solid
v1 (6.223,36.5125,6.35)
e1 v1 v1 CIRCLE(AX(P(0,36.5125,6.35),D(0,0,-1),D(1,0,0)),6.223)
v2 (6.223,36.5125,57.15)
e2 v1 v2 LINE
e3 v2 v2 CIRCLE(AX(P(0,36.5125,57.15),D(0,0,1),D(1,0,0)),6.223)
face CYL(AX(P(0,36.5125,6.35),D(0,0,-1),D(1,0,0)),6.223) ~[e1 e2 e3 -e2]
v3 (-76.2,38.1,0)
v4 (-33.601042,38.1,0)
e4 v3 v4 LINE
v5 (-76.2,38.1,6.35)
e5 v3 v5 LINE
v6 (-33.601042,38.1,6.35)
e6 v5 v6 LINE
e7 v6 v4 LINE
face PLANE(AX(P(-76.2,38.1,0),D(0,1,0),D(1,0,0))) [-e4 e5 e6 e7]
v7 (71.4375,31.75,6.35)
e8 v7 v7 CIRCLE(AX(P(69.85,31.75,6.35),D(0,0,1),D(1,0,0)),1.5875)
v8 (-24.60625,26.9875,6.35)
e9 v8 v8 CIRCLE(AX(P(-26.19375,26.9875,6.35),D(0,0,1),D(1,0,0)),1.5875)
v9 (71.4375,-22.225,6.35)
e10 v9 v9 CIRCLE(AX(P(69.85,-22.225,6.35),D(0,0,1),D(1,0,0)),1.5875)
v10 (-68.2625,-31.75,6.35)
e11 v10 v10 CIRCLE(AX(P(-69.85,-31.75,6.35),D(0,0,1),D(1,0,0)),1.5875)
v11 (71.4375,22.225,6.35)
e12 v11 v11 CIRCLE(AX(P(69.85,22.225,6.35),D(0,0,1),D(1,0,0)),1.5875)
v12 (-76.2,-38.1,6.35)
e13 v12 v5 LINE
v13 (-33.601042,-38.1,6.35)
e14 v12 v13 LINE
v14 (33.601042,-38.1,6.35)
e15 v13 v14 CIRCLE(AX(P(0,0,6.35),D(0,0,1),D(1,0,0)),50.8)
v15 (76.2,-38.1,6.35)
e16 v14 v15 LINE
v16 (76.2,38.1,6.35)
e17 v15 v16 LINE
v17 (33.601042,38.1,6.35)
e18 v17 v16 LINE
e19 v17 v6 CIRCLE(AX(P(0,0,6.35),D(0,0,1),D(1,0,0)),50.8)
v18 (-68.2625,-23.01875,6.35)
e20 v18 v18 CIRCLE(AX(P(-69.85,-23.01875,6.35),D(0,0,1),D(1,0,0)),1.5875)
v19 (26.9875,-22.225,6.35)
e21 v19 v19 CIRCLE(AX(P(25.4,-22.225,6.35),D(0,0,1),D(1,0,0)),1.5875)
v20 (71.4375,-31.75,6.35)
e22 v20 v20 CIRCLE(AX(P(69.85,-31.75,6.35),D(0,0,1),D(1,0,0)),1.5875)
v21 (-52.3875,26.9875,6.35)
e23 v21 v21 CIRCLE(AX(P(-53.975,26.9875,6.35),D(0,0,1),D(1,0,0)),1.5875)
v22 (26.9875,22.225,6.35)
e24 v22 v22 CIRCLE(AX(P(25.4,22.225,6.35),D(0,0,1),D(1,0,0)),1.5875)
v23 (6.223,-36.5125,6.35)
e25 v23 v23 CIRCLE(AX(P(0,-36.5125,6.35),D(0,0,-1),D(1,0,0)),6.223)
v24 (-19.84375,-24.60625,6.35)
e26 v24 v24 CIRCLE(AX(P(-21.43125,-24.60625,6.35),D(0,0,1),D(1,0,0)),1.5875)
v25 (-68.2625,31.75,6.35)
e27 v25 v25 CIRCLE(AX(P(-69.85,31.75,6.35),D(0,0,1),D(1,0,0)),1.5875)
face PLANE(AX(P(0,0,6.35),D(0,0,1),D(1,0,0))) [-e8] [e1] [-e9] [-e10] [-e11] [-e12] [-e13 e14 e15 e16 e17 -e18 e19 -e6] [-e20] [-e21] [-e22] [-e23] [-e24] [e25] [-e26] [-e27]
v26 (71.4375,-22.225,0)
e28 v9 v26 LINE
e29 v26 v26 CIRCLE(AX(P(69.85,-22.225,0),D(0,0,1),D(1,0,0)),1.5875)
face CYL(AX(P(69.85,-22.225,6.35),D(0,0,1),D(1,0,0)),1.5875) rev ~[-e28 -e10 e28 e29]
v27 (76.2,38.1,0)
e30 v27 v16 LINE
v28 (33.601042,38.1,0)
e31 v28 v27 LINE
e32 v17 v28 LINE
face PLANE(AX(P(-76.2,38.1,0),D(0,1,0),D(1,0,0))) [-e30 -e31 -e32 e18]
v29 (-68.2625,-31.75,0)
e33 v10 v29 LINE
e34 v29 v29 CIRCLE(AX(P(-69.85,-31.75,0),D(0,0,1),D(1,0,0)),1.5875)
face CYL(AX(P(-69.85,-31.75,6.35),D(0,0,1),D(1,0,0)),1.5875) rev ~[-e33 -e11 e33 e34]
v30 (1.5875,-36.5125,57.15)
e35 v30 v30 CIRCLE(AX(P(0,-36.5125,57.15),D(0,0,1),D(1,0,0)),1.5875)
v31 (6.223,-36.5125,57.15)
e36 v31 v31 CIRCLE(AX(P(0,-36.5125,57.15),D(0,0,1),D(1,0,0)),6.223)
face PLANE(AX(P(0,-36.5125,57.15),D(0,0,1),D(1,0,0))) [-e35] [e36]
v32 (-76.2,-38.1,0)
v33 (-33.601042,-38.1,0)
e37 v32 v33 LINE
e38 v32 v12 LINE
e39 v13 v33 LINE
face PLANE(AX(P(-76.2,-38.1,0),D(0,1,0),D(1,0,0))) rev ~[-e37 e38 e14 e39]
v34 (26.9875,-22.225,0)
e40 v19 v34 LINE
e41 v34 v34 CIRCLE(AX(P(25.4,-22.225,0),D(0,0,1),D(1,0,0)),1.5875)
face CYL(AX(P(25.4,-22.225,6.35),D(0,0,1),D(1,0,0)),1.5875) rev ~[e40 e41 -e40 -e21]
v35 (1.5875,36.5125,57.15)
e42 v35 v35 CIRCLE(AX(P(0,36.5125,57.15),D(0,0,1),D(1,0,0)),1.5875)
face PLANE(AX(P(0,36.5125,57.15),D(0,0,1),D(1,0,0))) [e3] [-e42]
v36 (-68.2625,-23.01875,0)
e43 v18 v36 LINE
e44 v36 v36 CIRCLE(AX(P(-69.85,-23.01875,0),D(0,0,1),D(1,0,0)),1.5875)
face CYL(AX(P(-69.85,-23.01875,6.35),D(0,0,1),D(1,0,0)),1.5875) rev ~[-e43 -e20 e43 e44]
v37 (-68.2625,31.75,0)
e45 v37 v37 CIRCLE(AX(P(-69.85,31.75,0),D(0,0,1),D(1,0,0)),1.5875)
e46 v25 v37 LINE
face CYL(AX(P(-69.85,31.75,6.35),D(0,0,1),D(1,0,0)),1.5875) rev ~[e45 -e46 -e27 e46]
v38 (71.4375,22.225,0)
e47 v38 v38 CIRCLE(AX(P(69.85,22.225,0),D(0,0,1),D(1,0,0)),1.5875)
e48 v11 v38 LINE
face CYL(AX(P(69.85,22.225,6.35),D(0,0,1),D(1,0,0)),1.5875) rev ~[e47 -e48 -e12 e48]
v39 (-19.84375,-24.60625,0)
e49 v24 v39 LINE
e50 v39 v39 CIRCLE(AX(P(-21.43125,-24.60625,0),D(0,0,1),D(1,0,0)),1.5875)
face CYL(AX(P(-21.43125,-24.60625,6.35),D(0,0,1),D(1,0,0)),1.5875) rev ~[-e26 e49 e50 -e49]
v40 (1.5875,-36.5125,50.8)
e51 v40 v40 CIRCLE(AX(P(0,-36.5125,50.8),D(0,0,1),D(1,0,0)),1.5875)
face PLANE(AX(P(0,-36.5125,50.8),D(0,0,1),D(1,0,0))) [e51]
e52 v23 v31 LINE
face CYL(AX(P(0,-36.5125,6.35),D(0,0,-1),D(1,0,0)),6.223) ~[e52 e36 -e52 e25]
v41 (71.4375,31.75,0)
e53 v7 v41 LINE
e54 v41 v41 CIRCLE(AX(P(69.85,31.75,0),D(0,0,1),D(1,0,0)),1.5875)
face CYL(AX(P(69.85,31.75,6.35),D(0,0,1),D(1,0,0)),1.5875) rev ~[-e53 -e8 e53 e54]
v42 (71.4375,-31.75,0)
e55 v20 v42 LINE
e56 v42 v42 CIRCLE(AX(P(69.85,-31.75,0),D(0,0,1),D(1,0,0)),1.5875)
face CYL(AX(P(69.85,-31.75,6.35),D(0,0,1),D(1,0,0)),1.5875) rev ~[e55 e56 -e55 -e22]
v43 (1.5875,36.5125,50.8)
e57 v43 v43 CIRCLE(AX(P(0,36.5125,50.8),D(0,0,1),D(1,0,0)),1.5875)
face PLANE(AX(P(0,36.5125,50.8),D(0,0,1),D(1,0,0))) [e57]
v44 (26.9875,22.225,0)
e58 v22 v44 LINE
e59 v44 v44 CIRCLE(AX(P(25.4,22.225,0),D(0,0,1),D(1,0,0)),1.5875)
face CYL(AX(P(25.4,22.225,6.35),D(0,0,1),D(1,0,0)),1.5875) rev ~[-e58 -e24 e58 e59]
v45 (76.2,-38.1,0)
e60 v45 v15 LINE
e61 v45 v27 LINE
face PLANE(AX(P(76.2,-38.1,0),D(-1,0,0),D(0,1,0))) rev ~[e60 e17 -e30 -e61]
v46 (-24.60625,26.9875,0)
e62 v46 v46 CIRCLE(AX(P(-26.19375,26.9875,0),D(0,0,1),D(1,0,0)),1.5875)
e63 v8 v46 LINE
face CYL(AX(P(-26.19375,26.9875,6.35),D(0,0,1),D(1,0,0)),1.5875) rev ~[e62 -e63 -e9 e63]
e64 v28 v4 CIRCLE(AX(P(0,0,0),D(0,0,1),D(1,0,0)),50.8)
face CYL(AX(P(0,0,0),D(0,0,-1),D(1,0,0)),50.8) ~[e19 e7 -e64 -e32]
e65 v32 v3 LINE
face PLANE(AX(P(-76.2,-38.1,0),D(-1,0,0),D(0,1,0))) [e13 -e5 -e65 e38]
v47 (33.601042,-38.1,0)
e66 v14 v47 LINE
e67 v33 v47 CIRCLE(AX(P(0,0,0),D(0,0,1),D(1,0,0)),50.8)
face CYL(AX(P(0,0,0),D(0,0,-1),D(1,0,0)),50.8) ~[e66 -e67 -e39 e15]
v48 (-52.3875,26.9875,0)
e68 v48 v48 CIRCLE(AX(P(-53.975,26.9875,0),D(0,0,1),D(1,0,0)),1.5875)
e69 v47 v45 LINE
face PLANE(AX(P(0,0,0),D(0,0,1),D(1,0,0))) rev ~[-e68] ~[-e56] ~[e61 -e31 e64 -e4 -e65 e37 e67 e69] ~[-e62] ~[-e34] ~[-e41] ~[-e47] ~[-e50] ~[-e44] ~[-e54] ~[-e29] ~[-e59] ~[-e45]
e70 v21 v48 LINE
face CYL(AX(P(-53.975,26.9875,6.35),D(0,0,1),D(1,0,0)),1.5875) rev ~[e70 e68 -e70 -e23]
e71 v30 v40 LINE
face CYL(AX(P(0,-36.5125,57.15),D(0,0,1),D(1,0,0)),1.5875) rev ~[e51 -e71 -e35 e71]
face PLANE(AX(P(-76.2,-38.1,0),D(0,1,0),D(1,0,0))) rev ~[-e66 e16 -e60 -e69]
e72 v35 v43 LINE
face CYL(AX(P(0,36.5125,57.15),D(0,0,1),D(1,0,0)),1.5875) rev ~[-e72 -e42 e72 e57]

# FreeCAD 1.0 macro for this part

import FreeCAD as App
import Part
import Sketcher
Q = App.Units.Quantity

doc = App.newDocument("Part")
body = doc.addObject("PartDesign::Body", "Body")

sketch1 = body.newObject("Sketcher::SketchObject", "Sketch")
sketch1.AttachmentSupport = (doc.getObject("XY_Plane"), [""])
sketch1.MapMode = "FlatFace"
sketch1.addGeometry(Part.Circle(App.Vector(0, 0, 0), App.Vector(0, 0, 1), 51), False)
sketch1.addConstraint(Sketcher.Constraint("Coincident", 0, 3, -1, 1))
sketch1.addConstraint(Sketcher.Constraint("Diameter", 0, Q("4 in")))
pad1 = body.newObject("PartDesign::Pad", "Pad")
pad1.Profile = sketch1
pad1.Length = Q("0.25 in")

sketch2 = body.newObject("Sketcher::SketchObject", "Sketch001")
sketch2.AttachmentSupport = (doc.getObject("XY_Plane"), [""])
sketch2.MapMode = "FlatFace"
sketch2.AttachmentOffset = App.Placement(App.Vector(0, 0, 0.25 * 25.4), App.Rotation())
sketch2.addGeometry(Part.Circle(App.Vector(0, -37, 0), App.Vector(0, 0, 1), 6), False)
sketch2.addGeometry(Part.Circle(App.Vector(0, 37, 0), App.Vector(0, 0, 1), 6), False)
sketch2.addConstraint(Sketcher.Constraint("Equal", 0, 1))
sketch2.addConstraint(Sketcher.Constraint("Symmetric", 0, 3, 1, 3, -1, 1))
sketch2.addConstraint(Sketcher.Constraint("PointOnObject", 0, 3, -2))
sketch2.addConstraint(Sketcher.Constraint("Diameter", 0, Q("0.49 in")))
sketch2.addConstraint(Sketcher.Constraint("DistanceY", 0, 3, -1, 1, Q("1.4375 in")))
pad2 = body.newObject("PartDesign::Pad", "Pad001")
pad2.Profile = sketch2
pad2.Length = Q("2 in")

sketch3 = body.newObject("Sketcher::SketchObject", "Sketch002")
sketch3.AttachmentSupport = (doc.getObject("XY_Plane"), [""])
sketch3.MapMode = "FlatFace"
sketch3.addGeometry(Part.LineSegment(App.Vector(-76, 38, 0), App.Vector(-76, -38, 0)), False)
sketch3.addGeometry(Part.LineSegment(App.Vector(-76, -38, 0), App.Vector(76, -38, 0)), False)
sketch3.addGeometry(Part.LineSegment(App.Vector(76, -38, 0), App.Vector(76, 38, 0)), False)
sketch3.addGeometry(Part.LineSegment(App.Vector(76, 38, 0), App.Vector(-76, 38, 0)), False)
sketch3.addConstraint(Sketcher.Constraint("Coincident", 0, 2, 1, 1))
sketch3.addConstraint(Sketcher.Constraint("Coincident", 1, 2, 2, 1))
sketch3.addConstraint(Sketcher.Constraint("Coincident", 2, 2, 3, 1))
sketch3.addConstraint(Sketcher.Constraint("Coincident", 3, 2, 0, 1))
sketch3.addConstraint(Sketcher.Constraint("Vertical", 0))
sketch3.addConstraint(Sketcher.Constraint("Horizontal", 1))
sketch3.addConstraint(Sketcher.Constraint("Vertical", 2))
sketch3.addConstraint(Sketcher.Constraint("Horizontal", 3))
sketch3.addConstraint(Sketcher.Constraint("Symmetric", 0, 2, 2, 2, -1, 1))
sketch3.addConstraint(Sketcher.Constraint("DistanceX", 1, 1, 1, 2, Q("6 in")))
sketch3.addConstraint(Sketcher.Constraint("DistanceY", 0, 2, 0, 1, Q("3 in")))
pad3 = body.newObject("PartDesign::Pad", "Pad002")
pad3.Profile = sketch3
pad3.Length = Q("0.25 in")

sketch4 = body.newObject("Sketcher::SketchObject", "Sketch003")
sketch4.AttachmentSupport = (doc.getObject("XY_Plane"), [""])
sketch4.MapMode = "FlatFace"
sketch4.AttachmentOffset = App.Placement(App.Vector(0, 0, 0.25 * 25.4), App.Rotation())
sketch4.addGeometry(Part.Circle(App.Vector(-54, 27, 0), App.Vector(0, 0, 1), 1.6), False)
sketch4.addGeometry(Part.Circle(App.Vector(-69.8, -23, 0), App.Vector(0, 0, 1), 1.6), False)
sketch4.addGeometry(Part.Circle(App.Vector(-26.2, 27, 0), App.Vector(0, 0, 1), 1.6), False)
sketch4.addGeometry(Part.Circle(App.Vector(-21.4, -24.6, 0), App.Vector(0, 0, 1), 1.6), False)
sketch4.addGeometry(Part.Circle(App.Vector(25.4, 22.2, 0), App.Vector(0, 0, 1), 1.6), False)
sketch4.addGeometry(Part.Circle(App.Vector(69.8, 22.2, 0), App.Vector(0, 0, 1), 1.6), False)
sketch4.addGeometry(Part.Circle(App.Vector(25.4, -22.2, 0), App.Vector(0, 0, 1), 1.6), False)
sketch4.addGeometry(Part.Circle(App.Vector(69.8, -22.2, 0), App.Vector(0, 0, 1), 1.6), False)
sketch4.addConstraint(Sketcher.Constraint("Equal", 0, 1))
sketch4.addConstraint(Sketcher.Constraint("Equal", 1, 2))
sketch4.addConstraint(Sketcher.Constraint("Equal", 2, 3))
sketch4.addConstraint(Sketcher.Constraint("Equal", 3, 4))
sketch4.addConstraint(Sketcher.Constraint("Equal", 4, 5))
sketch4.addConstraint(Sketcher.Constraint("Equal", 5, 6))
sketch4.addConstraint(Sketcher.Constraint("Equal", 6, 7))
sketch4.addConstraint(Sketcher.Constraint("Symmetric", 4, 3, 6, 3, -1))
sketch4.addConstraint(Sketcher.Constraint("Symmetric", 5, 3, 7, 3, -1))
sketch4.addConstraint(Sketcher.Constraint("Horizontal", 0, 3, 2, 3))
sketch4.addConstraint(Sketcher.Constraint("Horizontal", 4, 3, 5, 3))
sketch4.addConstraint(Sketcher.Constraint("Diameter", 0, Q("0.125 in")))
sketch4.addConstraint(Sketcher.Constraint("DistanceX", -1, 1, 4, 3, Q("1 in")))
sketch4.addConstraint(Sketcher.Constraint("DistanceX", 1, 3, 5, 3, Q("5.5 in")))
sketch4.addConstraint(Sketcher.Constraint("DistanceX", 1, 3, -1, 1, Q("2.75 in")))
sketch4.addConstraint(Sketcher.Constraint("DistanceY", 6, 3, 4, 3, Q("1.75 in")))
sketch4.addConstraint(Sketcher.Constraint("DistanceX", 0, 3, -1, 1, Q("2.125 in")))
sketch4.addConstraint(Sketcher.Constraint("DistanceY", -1, 1, 0, 3, Q("1.0625 in")))
sketch4.addConstraint(Sketcher.Constraint("DistanceY", 1, 3, -1, 1, Q("0.90625 in")))
sketch4.addConstraint(Sketcher.Constraint("DistanceX", 2, 3, -1, 1, Q("1.03125 in")))
sketch4.addConstraint(Sketcher.Constraint("DistanceX", 3, 3, -1, 1, Q("0.84375 in")))
sketch4.addConstraint(Sketcher.Constraint("DistanceY", 3, 3, -1, 1, Q("0.96875 in")))
pocket1 = body.newObject("PartDesign::Pocket", "Pocket")
pocket1.Profile = sketch4
pocket1.Type = "ThroughAll"

sketch5 = body.newObject("Sketcher::SketchObject", "Sketch004")
sketch5.AttachmentSupport = (doc.getObject("XY_Plane"), [""])
sketch5.MapMode = "FlatFace"
sketch5.AttachmentOffset = App.Placement(App.Vector(0, 0, 2.25 * 25.4), App.Rotation())
sketch5.addGeometry(Part.Circle(App.Vector(0, 36.5, 0), App.Vector(0, 0, 1), 1.6), False)
sketch5.addGeometry(Part.Circle(App.Vector(0, -36.5, 0), App.Vector(0, 0, 1), 1.6), False)
sketch5.addConstraint(Sketcher.Constraint("Equal", 0, 1))
sketch5.addConstraint(Sketcher.Constraint("Symmetric", 0, 3, 1, 3, -1, 1))
sketch5.addConstraint(Sketcher.Constraint("PointOnObject", 0, 3, -2))
sketch5.addConstraint(Sketcher.Constraint("Diameter", 0, Q("0.125 in")))
sketch5.addConstraint(Sketcher.Constraint("DistanceY", -1, 1, 0, 3, Q("1.4375 in")))
pocket2 = body.newObject("PartDesign::Pocket", "Pocket001")
pocket2.Profile = sketch5
pocket2.Length = Q("0.25 in")

sketch6 = body.newObject("Sketcher::SketchObject", "Sketch005")
sketch6.AttachmentSupport = (doc.getObject("XY_Plane"), [""])
sketch6.MapMode = "FlatFace"
sketch6.AttachmentOffset = App.Placement(App.Vector(0, 0, 0.25 * 25.4), App.Rotation())
sketch6.addGeometry(Part.Circle(App.Vector(-69.8, 31.8, 0), App.Vector(0, 0, 1), 1.6), False)
sketch6.addGeometry(Part.Circle(App.Vector(-69.8, -31.8, 0), App.Vector(0, 0, 1), 1.6), False)
sketch6.addGeometry(Part.Circle(App.Vector(69.8, -31.8, 0), App.Vector(0, 0, 1), 1.6), False)
sketch6.addGeometry(Part.Circle(App.Vector(69.8, 31.8, 0), App.Vector(0, 0, 1), 1.6), False)
sketch6.addConstraint(Sketcher.Constraint("Equal", 0, 1))
sketch6.addConstraint(Sketcher.Constraint("Equal", 1, 2))
sketch6.addConstraint(Sketcher.Constraint("Equal", 2, 3))
sketch6.addConstraint(Sketcher.Constraint("Symmetric", 0, 3, 2, 3, -1, 1))
sketch6.addConstraint(Sketcher.Constraint("Symmetric", 1, 3, 3, 3, -1, 1))
sketch6.addConstraint(Sketcher.Constraint("Symmetric", 1, 3, 2, 3, -2))
sketch6.addConstraint(Sketcher.Constraint("Diameter", 0, Q("0.125 in")))
sketch6.addConstraint(Sketcher.Constraint("DistanceY", 1, 3, 0, 3, Q("2.5 in")))
sketch6.addConstraint(Sketcher.Constraint("DistanceX", 1, 3, 2, 3, Q("5.5 in")))
pocket3 = body.newObject("PartDesign::Pocket", "Pocket002")
pocket3.Profile = sketch6
pocket3.Length = Q("1 in")

doc.recompute()
